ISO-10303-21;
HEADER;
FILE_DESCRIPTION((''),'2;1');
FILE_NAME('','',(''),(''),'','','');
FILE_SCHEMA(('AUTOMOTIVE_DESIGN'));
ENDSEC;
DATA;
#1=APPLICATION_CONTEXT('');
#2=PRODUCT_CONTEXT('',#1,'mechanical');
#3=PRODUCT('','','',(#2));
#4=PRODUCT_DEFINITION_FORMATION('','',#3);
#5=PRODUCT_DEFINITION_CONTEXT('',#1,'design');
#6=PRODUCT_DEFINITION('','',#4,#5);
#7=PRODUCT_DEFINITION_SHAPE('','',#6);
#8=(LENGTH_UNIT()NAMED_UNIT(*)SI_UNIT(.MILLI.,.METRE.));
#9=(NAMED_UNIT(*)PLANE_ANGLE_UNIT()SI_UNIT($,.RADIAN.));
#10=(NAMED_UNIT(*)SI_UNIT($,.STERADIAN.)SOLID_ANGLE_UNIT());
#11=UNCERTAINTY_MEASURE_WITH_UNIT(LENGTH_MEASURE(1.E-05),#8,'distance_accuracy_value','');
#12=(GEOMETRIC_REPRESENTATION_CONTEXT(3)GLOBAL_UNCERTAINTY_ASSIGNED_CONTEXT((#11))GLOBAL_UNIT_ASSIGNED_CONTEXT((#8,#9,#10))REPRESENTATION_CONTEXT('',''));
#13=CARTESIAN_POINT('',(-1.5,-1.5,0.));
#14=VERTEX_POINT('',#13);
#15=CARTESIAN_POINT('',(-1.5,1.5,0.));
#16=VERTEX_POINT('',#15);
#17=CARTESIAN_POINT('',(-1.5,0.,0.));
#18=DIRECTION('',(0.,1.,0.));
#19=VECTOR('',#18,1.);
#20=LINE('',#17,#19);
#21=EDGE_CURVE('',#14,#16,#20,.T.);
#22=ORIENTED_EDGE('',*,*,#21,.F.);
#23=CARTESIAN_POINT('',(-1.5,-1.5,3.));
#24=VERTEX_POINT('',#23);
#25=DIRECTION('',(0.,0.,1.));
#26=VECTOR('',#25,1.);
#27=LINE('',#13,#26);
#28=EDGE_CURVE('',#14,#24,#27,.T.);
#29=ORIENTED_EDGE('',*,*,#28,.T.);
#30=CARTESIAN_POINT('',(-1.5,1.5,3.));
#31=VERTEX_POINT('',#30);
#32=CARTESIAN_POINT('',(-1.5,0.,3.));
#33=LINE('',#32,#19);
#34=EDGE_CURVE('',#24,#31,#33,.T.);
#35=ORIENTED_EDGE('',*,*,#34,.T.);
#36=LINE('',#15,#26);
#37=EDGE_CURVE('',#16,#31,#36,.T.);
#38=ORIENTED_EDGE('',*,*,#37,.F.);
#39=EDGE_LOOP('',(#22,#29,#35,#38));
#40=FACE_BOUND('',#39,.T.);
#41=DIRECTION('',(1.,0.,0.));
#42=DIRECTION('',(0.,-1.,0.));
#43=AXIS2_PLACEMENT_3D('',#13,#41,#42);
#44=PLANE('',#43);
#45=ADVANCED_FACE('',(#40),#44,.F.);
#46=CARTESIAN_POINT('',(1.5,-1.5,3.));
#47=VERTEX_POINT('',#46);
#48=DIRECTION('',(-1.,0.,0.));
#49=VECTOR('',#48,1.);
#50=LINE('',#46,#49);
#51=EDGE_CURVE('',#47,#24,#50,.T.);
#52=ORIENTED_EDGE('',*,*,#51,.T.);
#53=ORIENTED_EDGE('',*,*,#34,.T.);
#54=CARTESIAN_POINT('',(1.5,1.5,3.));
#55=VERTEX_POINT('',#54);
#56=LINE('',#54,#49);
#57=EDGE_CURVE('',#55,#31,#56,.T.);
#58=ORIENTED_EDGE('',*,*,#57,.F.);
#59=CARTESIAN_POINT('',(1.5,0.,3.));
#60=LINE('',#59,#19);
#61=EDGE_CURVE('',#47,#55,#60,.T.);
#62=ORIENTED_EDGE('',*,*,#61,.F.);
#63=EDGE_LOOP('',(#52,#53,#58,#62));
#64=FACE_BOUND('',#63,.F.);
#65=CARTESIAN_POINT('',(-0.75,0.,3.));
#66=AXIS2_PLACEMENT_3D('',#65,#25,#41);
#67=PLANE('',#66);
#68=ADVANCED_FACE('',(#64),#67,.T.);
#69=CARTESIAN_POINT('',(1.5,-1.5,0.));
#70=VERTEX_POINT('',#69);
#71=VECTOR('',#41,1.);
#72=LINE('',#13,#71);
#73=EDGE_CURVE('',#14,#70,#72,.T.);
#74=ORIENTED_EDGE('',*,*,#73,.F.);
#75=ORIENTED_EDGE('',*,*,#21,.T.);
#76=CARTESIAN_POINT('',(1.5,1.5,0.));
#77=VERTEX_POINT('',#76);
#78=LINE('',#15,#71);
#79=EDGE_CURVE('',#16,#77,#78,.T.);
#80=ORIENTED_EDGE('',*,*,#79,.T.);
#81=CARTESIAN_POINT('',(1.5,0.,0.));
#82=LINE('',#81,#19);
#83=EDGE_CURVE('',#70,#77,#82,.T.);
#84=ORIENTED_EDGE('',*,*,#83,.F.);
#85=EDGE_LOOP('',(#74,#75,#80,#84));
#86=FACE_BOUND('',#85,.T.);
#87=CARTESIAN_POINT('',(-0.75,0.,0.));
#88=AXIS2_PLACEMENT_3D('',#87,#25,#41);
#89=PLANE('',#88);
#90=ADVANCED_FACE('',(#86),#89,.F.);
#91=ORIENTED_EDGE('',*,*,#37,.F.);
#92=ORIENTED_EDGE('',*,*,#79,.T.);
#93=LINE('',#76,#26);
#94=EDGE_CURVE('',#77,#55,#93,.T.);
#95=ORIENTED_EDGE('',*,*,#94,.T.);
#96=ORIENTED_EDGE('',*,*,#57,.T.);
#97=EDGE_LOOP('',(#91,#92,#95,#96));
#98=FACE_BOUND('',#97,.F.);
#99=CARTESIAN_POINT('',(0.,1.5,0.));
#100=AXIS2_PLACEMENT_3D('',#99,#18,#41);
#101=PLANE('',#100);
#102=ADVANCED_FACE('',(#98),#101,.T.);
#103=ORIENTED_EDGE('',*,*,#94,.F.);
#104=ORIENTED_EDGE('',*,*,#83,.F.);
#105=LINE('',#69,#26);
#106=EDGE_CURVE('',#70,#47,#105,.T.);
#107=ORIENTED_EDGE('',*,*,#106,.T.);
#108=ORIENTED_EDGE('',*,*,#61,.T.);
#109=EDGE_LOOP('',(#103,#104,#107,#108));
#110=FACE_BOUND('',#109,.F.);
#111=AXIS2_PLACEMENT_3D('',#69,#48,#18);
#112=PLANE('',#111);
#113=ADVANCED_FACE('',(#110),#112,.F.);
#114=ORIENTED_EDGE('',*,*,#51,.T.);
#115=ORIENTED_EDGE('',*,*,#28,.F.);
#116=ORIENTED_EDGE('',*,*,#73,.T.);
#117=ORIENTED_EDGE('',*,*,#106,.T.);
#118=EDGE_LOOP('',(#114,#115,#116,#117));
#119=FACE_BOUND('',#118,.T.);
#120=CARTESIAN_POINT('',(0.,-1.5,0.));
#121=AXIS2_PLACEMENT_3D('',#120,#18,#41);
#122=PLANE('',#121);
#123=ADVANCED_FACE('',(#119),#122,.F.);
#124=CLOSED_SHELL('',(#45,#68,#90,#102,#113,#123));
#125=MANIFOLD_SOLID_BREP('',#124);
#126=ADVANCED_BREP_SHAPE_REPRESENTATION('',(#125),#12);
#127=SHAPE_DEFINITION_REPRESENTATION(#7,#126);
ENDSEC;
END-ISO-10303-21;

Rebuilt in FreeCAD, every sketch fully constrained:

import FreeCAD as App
import Part
import Sketcher
Q = App.Units.Quantity


def add_polygon(sketch, points):
    """Adds a closed chain of lines whose ends are joined by coincident constraints."""
    first, n = sketch.GeometryCount, len(points)
    for a, b in zip(points, points[1:] + points[:1]):
        sketch.addGeometry(Part.LineSegment(App.Vector(*a, 0), App.Vector(*b, 0)), False)
    for i in range(n):
        sketch.addConstraint(Sketcher.Constraint("Coincident", first + i, 2, first + (i + 1) % n, 1))

doc = App.newDocument("Part")
body = doc.addObject("PartDesign::Body", "Body")

# Sketch on XY plane
sketch1 = body.newObject("Sketcher::SketchObject", "Sketch")
sketch1.AttachmentSupport = (doc.getObject("XY_Plane"), [""])
sketch1.MapMode = "FlatFace"
add_polygon(sketch1, [(0, 1.5), (0, -1.5), (1.5, -1.5), (1.5, 1.5)])  # lines 0-3
sketch1.addConstraint(Sketcher.Constraint("Vertical", 0))
sketch1.addConstraint(Sketcher.Constraint("Horizontal", 1))
sketch1.addConstraint(Sketcher.Constraint("Vertical", 2))
sketch1.addConstraint(Sketcher.Constraint("Horizontal", 3))
sketch1.addConstraint(Sketcher.Constraint("Symmetric", 0, 2, 3, 2, -1, 1))
sketch1.addConstraint(Sketcher.Constraint("DistanceY", 0, 2, 0, 1, Q("3 mm")))
sketch1.addConstraint(Sketcher.Constraint("DistanceX", 1, 1, 1, 2, Q("1.5 mm")))
pad1 = body.newObject("PartDesign::Pad", "Pad")
pad1.Profile = sketch1
pad1.Length = 3
doc.recompute()

mirrored = body.newObject("PartDesign::Mirrored", "Mirrored")
mirrored.Originals = [pad1]
mirrored.MirrorPlane = (doc.getObject("YZ_Plane"), [""])
body.Tip = mirrored

doc.recompute()
